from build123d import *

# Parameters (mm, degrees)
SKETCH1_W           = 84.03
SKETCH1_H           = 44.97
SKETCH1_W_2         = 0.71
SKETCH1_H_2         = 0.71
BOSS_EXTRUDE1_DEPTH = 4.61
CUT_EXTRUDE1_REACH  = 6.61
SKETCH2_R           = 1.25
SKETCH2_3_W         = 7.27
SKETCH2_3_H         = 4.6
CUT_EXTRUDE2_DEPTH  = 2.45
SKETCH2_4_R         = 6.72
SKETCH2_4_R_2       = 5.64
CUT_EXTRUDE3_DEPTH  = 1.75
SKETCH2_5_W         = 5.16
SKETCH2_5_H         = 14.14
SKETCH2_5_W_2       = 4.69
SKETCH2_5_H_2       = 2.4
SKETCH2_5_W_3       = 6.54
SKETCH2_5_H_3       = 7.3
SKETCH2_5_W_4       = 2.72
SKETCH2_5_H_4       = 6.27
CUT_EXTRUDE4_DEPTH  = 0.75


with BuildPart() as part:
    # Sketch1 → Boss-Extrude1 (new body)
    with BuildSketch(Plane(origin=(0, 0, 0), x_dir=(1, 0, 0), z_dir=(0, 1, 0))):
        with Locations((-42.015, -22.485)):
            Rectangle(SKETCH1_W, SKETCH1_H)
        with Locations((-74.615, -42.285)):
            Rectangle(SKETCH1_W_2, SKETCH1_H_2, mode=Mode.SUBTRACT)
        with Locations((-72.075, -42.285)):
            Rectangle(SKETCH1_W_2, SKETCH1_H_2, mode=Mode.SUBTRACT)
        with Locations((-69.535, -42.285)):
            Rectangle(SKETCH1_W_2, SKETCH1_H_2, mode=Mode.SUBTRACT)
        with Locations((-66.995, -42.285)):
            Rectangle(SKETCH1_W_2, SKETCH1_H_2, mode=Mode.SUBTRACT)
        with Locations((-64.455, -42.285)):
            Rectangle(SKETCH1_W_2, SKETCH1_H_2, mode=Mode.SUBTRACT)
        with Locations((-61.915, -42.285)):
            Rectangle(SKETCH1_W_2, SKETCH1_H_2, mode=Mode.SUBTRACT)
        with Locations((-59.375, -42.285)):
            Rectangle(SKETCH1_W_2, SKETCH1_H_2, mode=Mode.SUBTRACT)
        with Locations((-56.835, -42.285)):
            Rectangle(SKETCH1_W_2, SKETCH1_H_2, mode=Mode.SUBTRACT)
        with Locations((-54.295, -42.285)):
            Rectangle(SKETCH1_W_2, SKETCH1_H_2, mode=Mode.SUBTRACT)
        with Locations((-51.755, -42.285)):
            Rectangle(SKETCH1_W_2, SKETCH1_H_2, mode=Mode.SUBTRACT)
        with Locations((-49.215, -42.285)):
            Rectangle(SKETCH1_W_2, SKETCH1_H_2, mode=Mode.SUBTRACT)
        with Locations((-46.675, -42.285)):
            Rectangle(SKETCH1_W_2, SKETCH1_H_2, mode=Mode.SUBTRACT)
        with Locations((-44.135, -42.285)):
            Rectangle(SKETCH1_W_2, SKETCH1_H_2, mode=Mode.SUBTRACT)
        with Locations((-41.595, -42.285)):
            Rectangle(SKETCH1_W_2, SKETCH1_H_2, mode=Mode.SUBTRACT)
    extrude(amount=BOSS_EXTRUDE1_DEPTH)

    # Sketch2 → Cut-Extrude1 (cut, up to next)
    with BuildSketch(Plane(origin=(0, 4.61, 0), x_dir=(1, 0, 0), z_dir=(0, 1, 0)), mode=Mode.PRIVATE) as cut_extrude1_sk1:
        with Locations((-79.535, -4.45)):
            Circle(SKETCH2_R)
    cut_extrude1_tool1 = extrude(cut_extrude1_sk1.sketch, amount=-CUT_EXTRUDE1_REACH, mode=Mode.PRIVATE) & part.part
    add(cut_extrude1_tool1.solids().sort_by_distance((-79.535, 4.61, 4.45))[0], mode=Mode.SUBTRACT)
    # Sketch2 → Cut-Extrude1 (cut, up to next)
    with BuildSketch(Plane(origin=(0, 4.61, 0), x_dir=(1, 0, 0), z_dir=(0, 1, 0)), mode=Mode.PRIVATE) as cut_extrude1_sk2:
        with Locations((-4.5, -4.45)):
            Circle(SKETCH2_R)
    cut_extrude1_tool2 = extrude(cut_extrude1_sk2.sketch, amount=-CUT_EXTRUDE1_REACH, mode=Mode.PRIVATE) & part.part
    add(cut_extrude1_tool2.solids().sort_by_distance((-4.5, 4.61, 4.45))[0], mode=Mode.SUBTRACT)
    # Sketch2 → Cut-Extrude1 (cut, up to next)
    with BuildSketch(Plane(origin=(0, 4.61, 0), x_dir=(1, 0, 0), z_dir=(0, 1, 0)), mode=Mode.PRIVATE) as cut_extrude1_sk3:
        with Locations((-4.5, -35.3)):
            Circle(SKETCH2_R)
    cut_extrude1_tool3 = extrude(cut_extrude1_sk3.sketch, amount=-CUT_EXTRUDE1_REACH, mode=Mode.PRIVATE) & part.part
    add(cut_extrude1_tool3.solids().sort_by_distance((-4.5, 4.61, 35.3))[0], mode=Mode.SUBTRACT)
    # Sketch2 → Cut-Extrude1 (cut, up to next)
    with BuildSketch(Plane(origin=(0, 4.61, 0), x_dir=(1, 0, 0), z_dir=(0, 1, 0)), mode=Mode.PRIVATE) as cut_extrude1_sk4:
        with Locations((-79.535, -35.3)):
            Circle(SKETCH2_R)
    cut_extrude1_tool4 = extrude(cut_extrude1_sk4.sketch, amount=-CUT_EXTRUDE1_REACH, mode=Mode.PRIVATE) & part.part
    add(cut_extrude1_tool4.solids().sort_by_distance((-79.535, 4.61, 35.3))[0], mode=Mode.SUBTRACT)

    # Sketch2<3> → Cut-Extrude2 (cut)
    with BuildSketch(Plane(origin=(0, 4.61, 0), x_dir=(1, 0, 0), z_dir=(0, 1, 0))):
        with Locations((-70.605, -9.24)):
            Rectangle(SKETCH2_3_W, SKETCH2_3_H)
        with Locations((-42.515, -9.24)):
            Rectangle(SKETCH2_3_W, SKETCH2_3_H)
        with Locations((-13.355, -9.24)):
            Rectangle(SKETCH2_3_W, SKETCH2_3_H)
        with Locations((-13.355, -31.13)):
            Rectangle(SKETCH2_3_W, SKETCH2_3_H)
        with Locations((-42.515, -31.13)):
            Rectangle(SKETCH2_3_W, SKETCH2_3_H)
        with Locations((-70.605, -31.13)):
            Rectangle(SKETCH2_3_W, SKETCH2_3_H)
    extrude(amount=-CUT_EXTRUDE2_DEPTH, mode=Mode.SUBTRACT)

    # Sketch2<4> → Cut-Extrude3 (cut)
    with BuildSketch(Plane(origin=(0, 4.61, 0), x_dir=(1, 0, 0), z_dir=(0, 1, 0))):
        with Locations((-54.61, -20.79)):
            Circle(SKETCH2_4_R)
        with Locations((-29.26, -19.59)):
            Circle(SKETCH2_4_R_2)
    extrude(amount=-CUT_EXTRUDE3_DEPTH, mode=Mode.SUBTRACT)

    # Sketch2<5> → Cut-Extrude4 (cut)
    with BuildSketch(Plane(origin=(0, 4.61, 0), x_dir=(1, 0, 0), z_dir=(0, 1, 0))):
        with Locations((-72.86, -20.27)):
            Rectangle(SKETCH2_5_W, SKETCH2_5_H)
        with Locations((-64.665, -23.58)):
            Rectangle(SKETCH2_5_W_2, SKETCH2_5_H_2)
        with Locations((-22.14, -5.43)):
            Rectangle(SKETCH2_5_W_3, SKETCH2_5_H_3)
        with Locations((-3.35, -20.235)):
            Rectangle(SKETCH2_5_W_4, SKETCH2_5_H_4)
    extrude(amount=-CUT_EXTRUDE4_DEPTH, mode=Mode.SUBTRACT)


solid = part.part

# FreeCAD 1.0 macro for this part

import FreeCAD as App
import Part
import Sketcher
from FreeCAD import Vector

doc = App.newDocument("Part")
body = doc.addObject("PartDesign::Body", "Body")

# Sketch on XZ plane
sketch1 = body.newObject("Sketcher::SketchObject", "Sketch")
sketch1.AttachmentSupport = (doc.getObject("XZ_Plane"), [""])
sketch1.MapMode = "FlatFace"
sketch1.addGeometry(Part.LineSegment(Vector(-84, 0, 0), Vector(-84, 45, 0)), False)
sketch1.addGeometry(Part.LineSegment(Vector(-84, 45, 0), Vector(0, 45, 0)), False)
sketch1.addGeometry(Part.LineSegment(Vector(0, 45, 0), Vector(0, 0, 0)), False)
sketch1.addGeometry(Part.LineSegment(Vector(0, 0, 0), Vector(-84, 0, 0)), False)
sketch1.addGeometry(Part.LineSegment(Vector(-74.3, 42.6, 0), Vector(-75, 42.6, 0)), False)
sketch1.addGeometry(Part.LineSegment(Vector(-75, 42.6, 0), Vector(-75, 41.9, 0)), False)
sketch1.addGeometry(Part.LineSegment(Vector(-75, 41.9, 0), Vector(-74.3, 41.9, 0)), False)
sketch1.addGeometry(Part.LineSegment(Vector(-74.3, 41.9, 0), Vector(-74.3, 42.6, 0)), False)
sketch1.addGeometry(Part.LineSegment(Vector(-71.7, 42.6, 0), Vector(-72.4, 42.6, 0)), False)
sketch1.addGeometry(Part.LineSegment(Vector(-72.4, 42.6, 0), Vector(-72.4, 41.9, 0)), False)
sketch1.addGeometry(Part.LineSegment(Vector(-72.4, 41.9, 0), Vector(-71.7, 41.9, 0)), False)
sketch1.addGeometry(Part.LineSegment(Vector(-71.7, 41.9, 0), Vector(-71.7, 42.6, 0)), False)
sketch1.addGeometry(Part.LineSegment(Vector(-69.2, 42.6, 0), Vector(-69.9, 42.6, 0)), False)
sketch1.addGeometry(Part.LineSegment(Vector(-69.9, 42.6, 0), Vector(-69.9, 41.9, 0)), False)
sketch1.addGeometry(Part.LineSegment(Vector(-69.9, 41.9, 0), Vector(-69.2, 41.9, 0)), False)
sketch1.addGeometry(Part.LineSegment(Vector(-69.2, 41.9, 0), Vector(-69.2, 42.6, 0)), False)
sketch1.addGeometry(Part.LineSegment(Vector(-66.6, 42.6, 0), Vector(-67.3, 42.6, 0)), False)
sketch1.addGeometry(Part.LineSegment(Vector(-67.3, 42.6, 0), Vector(-67.3, 41.9, 0)), False)
sketch1.addGeometry(Part.LineSegment(Vector(-67.3, 41.9, 0), Vector(-66.6, 41.9, 0)), False)
sketch1.addGeometry(Part.LineSegment(Vector(-66.6, 41.9, 0), Vector(-66.6, 42.6, 0)), False)
sketch1.addGeometry(Part.LineSegment(Vector(-64.1, 42.6, 0), Vector(-64.8, 42.6, 0)), False)
sketch1.addGeometry(Part.LineSegment(Vector(-64.8, 42.6, 0), Vector(-64.8, 41.9, 0)), False)
sketch1.addGeometry(Part.LineSegment(Vector(-64.8, 41.9, 0), Vector(-64.1, 41.9, 0)), False)
sketch1.addGeometry(Part.LineSegment(Vector(-64.1, 41.9, 0), Vector(-64.1, 42.6, 0)), False)
sketch1.addGeometry(Part.LineSegment(Vector(-61.6, 42.6, 0), Vector(-62.3, 42.6, 0)), False)
sketch1.addGeometry(Part.LineSegment(Vector(-62.3, 42.6, 0), Vector(-62.3, 41.9, 0)), False)
sketch1.addGeometry(Part.LineSegment(Vector(-62.3, 41.9, 0), Vector(-61.6, 41.9, 0)), False)
sketch1.addGeometry(Part.LineSegment(Vector(-61.6, 41.9, 0), Vector(-61.6, 42.6, 0)), False)
sketch1.addGeometry(Part.LineSegment(Vector(-59, 42.6, 0), Vector(-59.7, 42.6, 0)), False)
sketch1.addGeometry(Part.LineSegment(Vector(-59.7, 42.6, 0), Vector(-59.7, 41.9, 0)), False)
sketch1.addGeometry(Part.LineSegment(Vector(-59.7, 41.9, 0), Vector(-59, 41.9, 0)), False)
sketch1.addGeometry(Part.LineSegment(Vector(-59, 41.9, 0), Vector(-59, 42.6, 0)), False)
sketch1.addGeometry(Part.LineSegment(Vector(-56.5, 42.6, 0), Vector(-57.2, 42.6, 0)), False)
sketch1.addGeometry(Part.LineSegment(Vector(-57.2, 42.6, 0), Vector(-57.2, 41.9, 0)), False)
sketch1.addGeometry(Part.LineSegment(Vector(-57.2, 41.9, 0), Vector(-56.5, 41.9, 0)), False)
sketch1.addGeometry(Part.LineSegment(Vector(-56.5, 41.9, 0), Vector(-56.5, 42.6, 0)), False)
sketch1.addGeometry(Part.LineSegment(Vector(-53.9, 42.6, 0), Vector(-54.6, 42.6, 0)), False)
sketch1.addGeometry(Part.LineSegment(Vector(-54.6, 42.6, 0), Vector(-54.6, 41.9, 0)), False)
sketch1.addGeometry(Part.LineSegment(Vector(-54.6, 41.9, 0), Vector(-53.9, 41.9, 0)), False)
sketch1.addGeometry(Part.LineSegment(Vector(-53.9, 41.9, 0), Vector(-53.9, 42.6, 0)), False)
sketch1.addGeometry(Part.LineSegment(Vector(-51.4, 42.6, 0), Vector(-52.1, 42.6, 0)), False)
sketch1.addGeometry(Part.LineSegment(Vector(-52.1, 42.6, 0), Vector(-52.1, 41.9, 0)), False)
sketch1.addGeometry(Part.LineSegment(Vector(-52.1, 41.9, 0), Vector(-51.4, 41.9, 0)), False)
sketch1.addGeometry(Part.LineSegment(Vector(-51.4, 41.9, 0), Vector(-51.4, 42.6, 0)), False)
sketch1.addGeometry(Part.LineSegment(Vector(-48.9, 42.6, 0), Vector(-49.6, 42.6, 0)), False)
sketch1.addGeometry(Part.LineSegment(Vector(-49.6, 42.6, 0), Vector(-49.6, 41.9, 0)), False)
sketch1.addGeometry(Part.LineSegment(Vector(-49.6, 41.9, 0), Vector(-48.9, 41.9, 0)), False)
sketch1.addGeometry(Part.LineSegment(Vector(-48.9, 41.9, 0), Vector(-48.9, 42.6, 0)), False)
sketch1.addGeometry(Part.LineSegment(Vector(-46.3, 42.6, 0), Vector(-47, 42.6, 0)), False)
sketch1.addGeometry(Part.LineSegment(Vector(-47, 42.6, 0), Vector(-47, 41.9, 0)), False)
sketch1.addGeometry(Part.LineSegment(Vector(-47, 41.9, 0), Vector(-46.3, 41.9, 0)), False)
sketch1.addGeometry(Part.LineSegment(Vector(-46.3, 41.9, 0), Vector(-46.3, 42.6, 0)), False)
sketch1.addGeometry(Part.LineSegment(Vector(-43.8, 42.6, 0), Vector(-44.5, 42.6, 0)), False)
sketch1.addGeometry(Part.LineSegment(Vector(-44.5, 42.6, 0), Vector(-44.5, 41.9, 0)), False)
sketch1.addGeometry(Part.LineSegment(Vector(-44.5, 41.9, 0), Vector(-43.8, 41.9, 0)), False)
sketch1.addGeometry(Part.LineSegment(Vector(-43.8, 41.9, 0), Vector(-43.8, 42.6, 0)), False)
sketch1.addGeometry(Part.LineSegment(Vector(-41.2, 42.6, 0), Vector(-42, 42.6, 0)), False)
sketch1.addGeometry(Part.LineSegment(Vector(-42, 42.6, 0), Vector(-42, 41.9, 0)), False)
sketch1.addGeometry(Part.LineSegment(Vector(-42, 41.9, 0), Vector(-41.2, 41.9, 0)), False)
sketch1.addGeometry(Part.LineSegment(Vector(-41.2, 41.9, 0), Vector(-41.2, 42.6, 0)), False)
sketch1.addConstraint(Sketcher.Constraint("Coincident", 0, 2, 1, 1))
sketch1.addConstraint(Sketcher.Constraint("Coincident", 1, 2, 2, 1))
sketch1.addConstraint(Sketcher.Constraint("Coincident", 2, 2, 3, 1))
sketch1.addConstraint(Sketcher.Constraint("Coincident", 3, 2, 0, 1))
sketch1.addConstraint(Sketcher.Constraint("Coincident", 4, 2, 5, 1))
sketch1.addConstraint(Sketcher.Constraint("Coincident", 5, 2, 6, 1))
sketch1.addConstraint(Sketcher.Constraint("Coincident", 6, 2, 7, 1))
sketch1.addConstraint(Sketcher.Constraint("Coincident", 7, 2, 4, 1))
sketch1.addConstraint(Sketcher.Constraint("Coincident", 8, 2, 9, 1))
sketch1.addConstraint(Sketcher.Constraint("Coincident", 9, 2, 10, 1))
sketch1.addConstraint(Sketcher.Constraint("Coincident", 10, 2, 11, 1))
sketch1.addConstraint(Sketcher.Constraint("Coincident", 11, 2, 8, 1))
sketch1.addConstraint(Sketcher.Constraint("Coincident", 12, 2, 13, 1))
sketch1.addConstraint(Sketcher.Constraint("Coincident", 13, 2, 14, 1))
sketch1.addConstraint(Sketcher.Constraint("Coincident", 14, 2, 15, 1))
sketch1.addConstraint(Sketcher.Constraint("Coincident", 15, 2, 12, 1))
sketch1.addConstraint(Sketcher.Constraint("Coincident", 16, 2, 17, 1))
sketch1.addConstraint(Sketcher.Constraint("Coincident", 17, 2, 18, 1))
sketch1.addConstraint(Sketcher.Constraint("Coincident", 18, 2, 19, 1))
sketch1.addConstraint(Sketcher.Constraint("Coincident", 19, 2, 16, 1))
sketch1.addConstraint(Sketcher.Constraint("Coincident", 20, 2, 21, 1))
sketch1.addConstraint(Sketcher.Constraint("Coincident", 21, 2, 22, 1))
sketch1.addConstraint(Sketcher.Constraint("Coincident", 22, 2, 23, 1))
sketch1.addConstraint(Sketcher.Constraint("Coincident", 23, 2, 20, 1))
sketch1.addConstraint(Sketcher.Constraint("Coincident", 24, 2, 25, 1))
sketch1.addConstraint(Sketcher.Constraint("Coincident", 25, 2, 26, 1))
sketch1.addConstraint(Sketcher.Constraint("Coincident", 26, 2, 27, 1))
sketch1.addConstraint(Sketcher.Constraint("Coincident", 27, 2, 24, 1))
sketch1.addConstraint(Sketcher.Constraint("Coincident", 28, 2, 29, 1))
sketch1.addConstraint(Sketcher.Constraint("Coincident", 29, 2, 30, 1))
sketch1.addConstraint(Sketcher.Constraint("Coincident", 30, 2, 31, 1))
sketch1.addConstraint(Sketcher.Constraint("Coincident", 31, 2, 28, 1))
sketch1.addConstraint(Sketcher.Constraint("Coincident", 32, 2, 33, 1))
sketch1.addConstraint(Sketcher.Constraint("Coincident", 33, 2, 34, 1))
sketch1.addConstraint(Sketcher.Constraint("Coincident", 34, 2, 35, 1))
sketch1.addConstraint(Sketcher.Constraint("Coincident", 35, 2, 32, 1))
sketch1.addConstraint(Sketcher.Constraint("Coincident", 36, 2, 37, 1))
sketch1.addConstraint(Sketcher.Constraint("Coincident", 37, 2, 38, 1))
sketch1.addConstraint(Sketcher.Constraint("Coincident", 38, 2, 39, 1))
sketch1.addConstraint(Sketcher.Constraint("Coincident", 39, 2, 36, 1))
sketch1.addConstraint(Sketcher.Constraint("Coincident", 40, 2, 41, 1))
sketch1.addConstraint(Sketcher.Constraint("Coincident", 41, 2, 42, 1))
sketch1.addConstraint(Sketcher.Constraint("Coincident", 42, 2, 43, 1))
sketch1.addConstraint(Sketcher.Constraint("Coincident", 43, 2, 40, 1))
sketch1.addConstraint(Sketcher.Constraint("Coincident", 44, 2, 45, 1))
sketch1.addConstraint(Sketcher.Constraint("Coincident", 45, 2, 46, 1))
sketch1.addConstraint(Sketcher.Constraint("Coincident", 46, 2, 47, 1))
sketch1.addConstraint(Sketcher.Constraint("Coincident", 47, 2, 44, 1))
sketch1.addConstraint(Sketcher.Constraint("Coincident", 48, 2, 49, 1))
sketch1.addConstraint(Sketcher.Constraint("Coincident", 49, 2, 50, 1))
sketch1.addConstraint(Sketcher.Constraint("Coincident", 50, 2, 51, 1))
sketch1.addConstraint(Sketcher.Constraint("Coincident", 51, 2, 48, 1))
sketch1.addConstraint(Sketcher.Constraint("Coincident", 52, 2, 53, 1))
sketch1.addConstraint(Sketcher.Constraint("Coincident", 53, 2, 54, 1))
sketch1.addConstraint(Sketcher.Constraint("Coincident", 54, 2, 55, 1))
sketch1.addConstraint(Sketcher.Constraint("Coincident", 55, 2, 52, 1))
sketch1.addConstraint(Sketcher.Constraint("Coincident", 56, 2, 57, 1))
sketch1.addConstraint(Sketcher.Constraint("Coincident", 57, 2, 58, 1))
sketch1.addConstraint(Sketcher.Constraint("Coincident", 58, 2, 59, 1))
sketch1.addConstraint(Sketcher.Constraint("Coincident", 59, 2, 56, 1))
sketch1.addConstraint(Sketcher.Constraint("Vertical", 0))
sketch1.addConstraint(Sketcher.Constraint("Horizontal", 1))
sketch1.addConstraint(Sketcher.Constraint("Vertical", 2))
sketch1.addConstraint(Sketcher.Constraint("Horizontal", 3))
sketch1.addConstraint(Sketcher.Constraint("Horizontal", 4))
sketch1.addConstraint(Sketcher.Constraint("Vertical", 5))
sketch1.addConstraint(Sketcher.Constraint("Horizontal", 6))
sketch1.addConstraint(Sketcher.Constraint("Vertical", 7))
sketch1.addConstraint(Sketcher.Constraint("Horizontal", 8))
sketch1.addConstraint(Sketcher.Constraint("Vertical", 9))
sketch1.addConstraint(Sketcher.Constraint("Horizontal", 10))
sketch1.addConstraint(Sketcher.Constraint("Vertical", 11))
sketch1.addConstraint(Sketcher.Constraint("Horizontal", 12))
sketch1.addConstraint(Sketcher.Constraint("Vertical", 13))
sketch1.addConstraint(Sketcher.Constraint("Horizontal", 14))
sketch1.addConstraint(Sketcher.Constraint("Vertical", 15))
sketch1.addConstraint(Sketcher.Constraint("Horizontal", 16))
sketch1.addConstraint(Sketcher.Constraint("Vertical", 17))
sketch1.addConstraint(Sketcher.Constraint("Horizontal", 18))
sketch1.addConstraint(Sketcher.Constraint("Vertical", 19))
sketch1.addConstraint(Sketcher.Constraint("Horizontal", 20))
sketch1.addConstraint(Sketcher.Constraint("Vertical", 21))
sketch1.addConstraint(Sketcher.Constraint("Horizontal", 22))
sketch1.addConstraint(Sketcher.Constraint("Vertical", 23))
sketch1.addConstraint(Sketcher.Constraint("Horizontal", 24))
sketch1.addConstraint(Sketcher.Constraint("Vertical", 25))
sketch1.addConstraint(Sketcher.Constraint("Horizontal", 26))
sketch1.addConstraint(Sketcher.Constraint("Vertical", 27))
sketch1.addConstraint(Sketcher.Constraint("Horizontal", 28))
sketch1.addConstraint(Sketcher.Constraint("Vertical", 29))
sketch1.addConstraint(Sketcher.Constraint("Horizontal", 30))
sketch1.addConstraint(Sketcher.Constraint("Vertical", 31))
sketch1.addConstraint(Sketcher.Constraint("Horizontal", 32))
sketch1.addConstraint(Sketcher.Constraint("Vertical", 33))
sketch1.addConstraint(Sketcher.Constraint("Horizontal", 34))
sketch1.addConstraint(Sketcher.Constraint("Vertical", 35))
sketch1.addConstraint(Sketcher.Constraint("Horizontal", 36))
sketch1.addConstraint(Sketcher.Constraint("Vertical", 37))
sketch1.addConstraint(Sketcher.Constraint("Horizontal", 38))
sketch1.addConstraint(Sketcher.Constraint("Vertical", 39))
sketch1.addConstraint(Sketcher.Constraint("Horizontal", 40))
sketch1.addConstraint(Sketcher.Constraint("Vertical", 41))
sketch1.addConstraint(Sketcher.Constraint("Horizontal", 42))
sketch1.addConstraint(Sketcher.Constraint("Vertical", 43))
sketch1.addConstraint(Sketcher.Constraint("Horizontal", 44))
sketch1.addConstraint(Sketcher.Constraint("Vertical", 45))
sketch1.addConstraint(Sketcher.Constraint("Horizontal", 46))
sketch1.addConstraint(Sketcher.Constraint("Vertical", 47))
sketch1.addConstraint(Sketcher.Constraint("Horizontal", 48))
sketch1.addConstraint(Sketcher.Constraint("Vertical", 49))
sketch1.addConstraint(Sketcher.Constraint("Horizontal", 50))
sketch1.addConstraint(Sketcher.Constraint("Vertical", 51))
sketch1.addConstraint(Sketcher.Constraint("Horizontal", 52))
sketch1.addConstraint(Sketcher.Constraint("Vertical", 53))
sketch1.addConstraint(Sketcher.Constraint("Horizontal", 54))
sketch1.addConstraint(Sketcher.Constraint("Vertical", 55))
sketch1.addConstraint(Sketcher.Constraint("Horizontal", 56))
sketch1.addConstraint(Sketcher.Constraint("Vertical", 57))
sketch1.addConstraint(Sketcher.Constraint("Horizontal", 58))
sketch1.addConstraint(Sketcher.Constraint("Vertical", 59))
sketch1.addConstraint(Sketcher.Constraint("Coincident", 2, 2, -1, 1))
sketch1.addConstraint(Sketcher.Constraint("Horizontal", 7, 2, 8, 2))
sketch1.addConstraint(Sketcher.Constraint("Horizontal", 6, 2, 9, 2))
sketch1.addConstraint(Sketcher.Constraint("Horizontal", 11, 2, 12, 2))
sketch1.addConstraint(Sketcher.Constraint("Horizontal", 10, 2, 13, 2))
sketch1.addConstraint(Sketcher.Constraint("Horizontal", 15, 2, 16, 2))
sketch1.addConstraint(Sketcher.Constraint("Horizontal", 14, 2, 17, 2))
sketch1.addConstraint(Sketcher.Constraint("Horizontal", 19, 2, 20, 2))
sketch1.addConstraint(Sketcher.Constraint("Horizontal", 18, 2, 21, 2))
sketch1.addConstraint(Sketcher.Constraint("Horizontal", 23, 2, 24, 2))
sketch1.addConstraint(Sketcher.Constraint("Horizontal", 22, 2, 25, 2))
sketch1.addConstraint(Sketcher.Constraint("Horizontal", 27, 2, 28, 2))
sketch1.addConstraint(Sketcher.Constraint("Horizontal", 26, 2, 29, 2))
sketch1.addConstraint(Sketcher.Constraint("Horizontal", 31, 2, 32, 2))
sketch1.addConstraint(Sketcher.Constraint("Horizontal", 30, 2, 33, 2))
sketch1.addConstraint(Sketcher.Constraint("Horizontal", 35, 2, 36, 2))
sketch1.addConstraint(Sketcher.Constraint("Horizontal", 34, 2, 37, 2))
sketch1.addConstraint(Sketcher.Constraint("Horizontal", 39, 2, 40, 2))
sketch1.addConstraint(Sketcher.Constraint("Horizontal", 38, 2, 41, 2))
sketch1.addConstraint(Sketcher.Constraint("Horizontal", 43, 2, 44, 2))
sketch1.addConstraint(Sketcher.Constraint("Horizontal", 42, 2, 45, 2))
sketch1.addConstraint(Sketcher.Constraint("Horizontal", 47, 2, 48, 2))
sketch1.addConstraint(Sketcher.Constraint("Horizontal", 46, 2, 49, 2))
sketch1.addConstraint(Sketcher.Constraint("Horizontal", 51, 2, 52, 2))
sketch1.addConstraint(Sketcher.Constraint("Horizontal", 50, 2, 53, 2))
sketch1.addConstraint(Sketcher.Constraint("Horizontal", 55, 2, 56, 2))
sketch1.addConstraint(Sketcher.Constraint("Horizontal", 54, 2, 57, 2))
sketch1.addConstraint(Sketcher.Constraint("Equal", 6, 8))
sketch1.addConstraint(Sketcher.Constraint("Equal", 10, 12))
sketch1.addConstraint(Sketcher.Constraint("Equal", 14, 16))
sketch1.addConstraint(Sketcher.Constraint("Equal", 18, 20))
sketch1.addConstraint(Sketcher.Constraint("Equal", 22, 24))
sketch1.addConstraint(Sketcher.Constraint("Equal", 26, 28))
sketch1.addConstraint(Sketcher.Constraint("Equal", 30, 32))
sketch1.addConstraint(Sketcher.Constraint("Equal", 34, 36))
sketch1.addConstraint(Sketcher.Constraint("Equal", 38, 40))
sketch1.addConstraint(Sketcher.Constraint("Equal", 42, 44))
sketch1.addConstraint(Sketcher.Constraint("Equal", 46, 48))
sketch1.addConstraint(Sketcher.Constraint("Equal", 50, 52))
sketch1.addConstraint(Sketcher.Constraint("Equal", 54, 56))
sketch1.addConstraint(Sketcher.Constraint("Equal", 58, 5))
sketch1.addConstraint(Sketcher.Constraint("DistanceX", 1, 1, 1, 2, 84.03))
sketch1.addConstraint(Sketcher.Constraint("DistanceX", 4, 2, 4, 1, 0.71))
sketch1.addConstraint(Sketcher.Constraint("DistanceY", 0, 1, 0, 2, 44.97))
sketch1.addConstraint(Sketcher.Constraint("DistanceX", 22, 2, -1, 1, 64.1))
sketch1.addConstraint(Sketcher.Constraint("DistanceX", 42, 2, -1, 1, 51.4))
sketch1.addConstraint(Sketcher.Constraint("DistanceX", 0, 2, 8, 2, 11.6))
sketch1.addConstraint(Sketcher.Constraint("DistanceX", 4, 2, -1, 1, 74.97))
sketch1.addConstraint(Sketcher.Constraint("DistanceY", -1, 1, 4, 2, 42.64))
sketch1.addConstraint(Sketcher.Constraint("DistanceX", 12, 2, -1, 1, 69.89))
sketch1.addConstraint(Sketcher.Constraint("DistanceX", 16, 2, -1, 1, 67.35))
sketch1.addConstraint(Sketcher.Constraint("DistanceX", 24, 2, -1, 1, 62.27))
sketch1.addConstraint(Sketcher.Constraint("DistanceX", 28, 2, -1, 1, 59.73))
sketch1.addConstraint(Sketcher.Constraint("DistanceX", 32, 2, -1, 1, 57.19))
sketch1.addConstraint(Sketcher.Constraint("DistanceX", 36, 2, -1, 1, 54.65))
sketch1.addConstraint(Sketcher.Constraint("DistanceX", 44, 2, -1, 1, 49.57))
sketch1.addConstraint(Sketcher.Constraint("DistanceX", 48, 2, -1, 1, 47.03))
sketch1.addConstraint(Sketcher.Constraint("DistanceX", 52, 2, -1, 1, 44.49))
sketch1.addConstraint(Sketcher.Constraint("DistanceX", 56, 2, -1, 1, 41.95))
pad1 = body.newObject("PartDesign::Pad", "Pad")
pad1.Profile = sketch1
pad1.Length = 4.61
pad1.Reversed = True

# Sketch on XZ plane
sketch2 = body.newObject("Sketcher::SketchObject", "Sketch001")
sketch2.AttachmentSupport = (doc.getObject("XZ_Plane"), [""])
sketch2.MapMode = "FlatFace"
sketch2.AttachmentOffset = App.Placement(Vector(0, 0, -4.61), App.Rotation())
sketch2.addGeometry(Part.Circle(Vector(-79.5, 4.5, 0), Vector(0, 0, 1), 1.2), False)
sketch2.addConstraint(Sketcher.Constraint("Diameter", 0, 2.5))
sketch2.addConstraint(Sketcher.Constraint("DistanceY", -1, 1, 0, 3, 4.45))
sketch2.addConstraint(Sketcher.Constraint("DistanceX", 0, 3, -1, 1, 79.535))
pocket1 = body.newObject("PartDesign::Pocket", "Pocket")
pocket1.Profile = sketch2
pocket1.Type = "UpToFirst"
pocket1.Reversed = True

# Sketch on XZ plane
sketch3 = body.newObject("Sketcher::SketchObject", "Sketch002")
sketch3.AttachmentSupport = (doc.getObject("XZ_Plane"), [""])
sketch3.MapMode = "FlatFace"
sketch3.AttachmentOffset = App.Placement(Vector(0, 0, -4.61), App.Rotation())
sketch3.addGeometry(Part.Circle(Vector(-4.5, 4.5, 0), Vector(0, 0, 1), 1.2), False)
sketch3.addConstraint(Sketcher.Constraint("Diameter", 0, 2.5))
sketch3.addConstraint(Sketcher.Constraint("DistanceX", 0, 3, -1, 1, 4.5))
sketch3.addConstraint(Sketcher.Constraint("DistanceY", -1, 1, 0, 3, 4.45))
pocket2 = body.newObject("PartDesign::Pocket", "Pocket001")
pocket2.Profile = sketch3
pocket2.Type = "UpToFirst"
pocket2.Reversed = True

# Sketch on XZ plane
sketch4 = body.newObject("Sketcher::SketchObject", "Sketch003")
sketch4.AttachmentSupport = (doc.getObject("XZ_Plane"), [""])
sketch4.MapMode = "FlatFace"
sketch4.AttachmentOffset = App.Placement(Vector(0, 0, -4.61), App.Rotation())
sketch4.addGeometry(Part.Circle(Vector(-4.5, 35.3, 0), Vector(0, 0, 1), 1.2), False)
sketch4.addConstraint(Sketcher.Constraint("Diameter", 0, 2.5))
sketch4.addConstraint(Sketcher.Constraint("DistanceX", 0, 3, -1, 1, 4.5))
sketch4.addConstraint(Sketcher.Constraint("DistanceY", -1, 1, 0, 3, 35.3))
pocket3 = body.newObject("PartDesign::Pocket", "Pocket002")
pocket3.Profile = sketch4
pocket3.Type = "UpToFirst"
pocket3.Reversed = True

# Sketch on XZ plane
sketch5 = body.newObject("Sketcher::SketchObject", "Sketch004")
sketch5.AttachmentSupport = (doc.getObject("XZ_Plane"), [""])
sketch5.MapMode = "FlatFace"
sketch5.AttachmentOffset = App.Placement(Vector(0, 0, -4.61), App.Rotation())
sketch5.addGeometry(Part.Circle(Vector(-79.5, 35.3, 0), Vector(0, 0, 1), 1.2), False)
sketch5.addConstraint(Sketcher.Constraint("Diameter", 0, 2.5))
sketch5.addConstraint(Sketcher.Constraint("DistanceY", -1, 1, 0, 3, 35.3))
sketch5.addConstraint(Sketcher.Constraint("DistanceX", 0, 3, -1, 1, 79.535))
pocket4 = body.newObject("PartDesign::Pocket", "Pocket003")
pocket4.Profile = sketch5
pocket4.Type = "UpToFirst"
pocket4.Reversed = True

# Sketch on XZ plane
sketch6 = body.newObject("Sketcher::SketchObject", "Sketch005")
sketch6.AttachmentSupport = (doc.getObject("XZ_Plane"), [""])
sketch6.MapMode = "FlatFace"
sketch6.AttachmentOffset = App.Placement(Vector(0, 0, -4.61), App.Rotation())
sketch6.addGeometry(Part.LineSegment(Vector(-74.2, 6.9, 0), Vector(-74.2, 11.5, 0)), False)
sketch6.addGeometry(Part.LineSegment(Vector(-74.2, 11.5, 0), Vector(-67, 11.5, 0)), False)
sketch6.addGeometry(Part.LineSegment(Vector(-67, 11.5, 0), Vector(-67, 6.9, 0)), False)
sketch6.addGeometry(Part.LineSegment(Vector(-67, 6.9, 0), Vector(-74.2, 6.9, 0)), False)
sketch6.addGeometry(Part.LineSegment(Vector(-46.1, 6.9, 0), Vector(-46.1, 11.5, 0)), False)
sketch6.addGeometry(Part.LineSegment(Vector(-46.1, 11.5, 0), Vector(-38.9, 11.5, 0)), False)
sketch6.addGeometry(Part.LineSegment(Vector(-38.9, 11.5, 0), Vector(-38.9, 6.9, 0)), False)
sketch6.addGeometry(Part.LineSegment(Vector(-38.9, 6.9, 0), Vector(-46.1, 6.9, 0)), False)
sketch6.addGeometry(Part.LineSegment(Vector(-17, 6.9, 0), Vector(-17, 11.5, 0)), False)
sketch6.addGeometry(Part.LineSegment(Vector(-17, 11.5, 0), Vector(-9.7, 11.5, 0)), False)
sketch6.addGeometry(Part.LineSegment(Vector(-9.7, 11.5, 0), Vector(-9.7, 6.9, 0)), False)
sketch6.addGeometry(Part.LineSegment(Vector(-9.7, 6.9, 0), Vector(-17, 6.9, 0)), False)
sketch6.addGeometry(Part.LineSegment(Vector(-17, 28.8, 0), Vector(-17, 33.4, 0)), False)
sketch6.addGeometry(Part.LineSegment(Vector(-17, 33.4, 0), Vector(-9.7, 33.4, 0)), False)
sketch6.addGeometry(Part.LineSegment(Vector(-9.7, 33.4, 0), Vector(-9.7, 28.8, 0)), False)
sketch6.addGeometry(Part.LineSegment(Vector(-9.7, 28.8, 0), Vector(-17, 28.8, 0)), False)
sketch6.addGeometry(Part.LineSegment(Vector(-46.1, 28.8, 0), Vector(-46.1, 33.4, 0)), False)
sketch6.addGeometry(Part.LineSegment(Vector(-46.1, 33.4, 0), Vector(-38.9, 33.4, 0)), False)
sketch6.addGeometry(Part.LineSegment(Vector(-38.9, 33.4, 0), Vector(-38.9, 28.8, 0)), False)
sketch6.addGeometry(Part.LineSegment(Vector(-38.9, 28.8, 0), Vector(-46.1, 28.8, 0)), False)
sketch6.addGeometry(Part.LineSegment(Vector(-74.2, 28.8, 0), Vector(-74.2, 33.4, 0)), False)
sketch6.addGeometry(Part.LineSegment(Vector(-74.2, 33.4, 0), Vector(-67, 33.4, 0)), False)
sketch6.addGeometry(Part.LineSegment(Vector(-67, 33.4, 0), Vector(-67, 28.8, 0)), False)
sketch6.addGeometry(Part.LineSegment(Vector(-67, 28.8, 0), Vector(-74.2, 28.8, 0)), False)
sketch6.addConstraint(Sketcher.Constraint("Coincident", 0, 2, 1, 1))
sketch6.addConstraint(Sketcher.Constraint("Coincident", 1, 2, 2, 1))
sketch6.addConstraint(Sketcher.Constraint("Coincident", 2, 2, 3, 1))
sketch6.addConstraint(Sketcher.Constraint("Coincident", 3, 2, 0, 1))
sketch6.addConstraint(Sketcher.Constraint("Coincident", 4, 2, 5, 1))
sketch6.addConstraint(Sketcher.Constraint("Coincident", 5, 2, 6, 1))
sketch6.addConstraint(Sketcher.Constraint("Coincident", 6, 2, 7, 1))
sketch6.addConstraint(Sketcher.Constraint("Coincident", 7, 2, 4, 1))
sketch6.addConstraint(Sketcher.Constraint("Coincident", 8, 2, 9, 1))
sketch6.addConstraint(Sketcher.Constraint("Coincident", 9, 2, 10, 1))
sketch6.addConstraint(Sketcher.Constraint("Coincident", 10, 2, 11, 1))
sketch6.addConstraint(Sketcher.Constraint("Coincident", 11, 2, 8, 1))
sketch6.addConstraint(Sketcher.Constraint("Coincident", 12, 2, 13, 1))
sketch6.addConstraint(Sketcher.Constraint("Coincident", 13, 2, 14, 1))
sketch6.addConstraint(Sketcher.Constraint("Coincident", 14, 2, 15, 1))
sketch6.addConstraint(Sketcher.Constraint("Coincident", 15, 2, 12, 1))
sketch6.addConstraint(Sketcher.Constraint("Coincident", 16, 2, 17, 1))
sketch6.addConstraint(Sketcher.Constraint("Coincident", 17, 2, 18, 1))
sketch6.addConstraint(Sketcher.Constraint("Coincident", 18, 2, 19, 1))
sketch6.addConstraint(Sketcher.Constraint("Coincident", 19, 2, 16, 1))
sketch6.addConstraint(Sketcher.Constraint("Coincident", 20, 2, 21, 1))
sketch6.addConstraint(Sketcher.Constraint("Coincident", 21, 2, 22, 1))
sketch6.addConstraint(Sketcher.Constraint("Coincident", 22, 2, 23, 1))
sketch6.addConstraint(Sketcher.Constraint("Coincident", 23, 2, 20, 1))
sketch6.addConstraint(Sketcher.Constraint("Vertical", 0))
sketch6.addConstraint(Sketcher.Constraint("Horizontal", 1))
sketch6.addConstraint(Sketcher.Constraint("Vertical", 2))
sketch6.addConstraint(Sketcher.Constraint("Horizontal", 3))
sketch6.addConstraint(Sketcher.Constraint("Vertical", 4))
sketch6.addConstraint(Sketcher.Constraint("Horizontal", 5))
sketch6.addConstraint(Sketcher.Constraint("Vertical", 6))
sketch6.addConstraint(Sketcher.Constraint("Horizontal", 7))
sketch6.addConstraint(Sketcher.Constraint("Vertical", 8))
sketch6.addConstraint(Sketcher.Constraint("Horizontal", 9))
sketch6.addConstraint(Sketcher.Constraint("Vertical", 10))
sketch6.addConstraint(Sketcher.Constraint("Horizontal", 11))
sketch6.addConstraint(Sketcher.Constraint("Vertical", 12))
sketch6.addConstraint(Sketcher.Constraint("Horizontal", 13))
sketch6.addConstraint(Sketcher.Constraint("Vertical", 14))
sketch6.addConstraint(Sketcher.Constraint("Horizontal", 15))
sketch6.addConstraint(Sketcher.Constraint("Vertical", 16))
sketch6.addConstraint(Sketcher.Constraint("Horizontal", 17))
sketch6.addConstraint(Sketcher.Constraint("Vertical", 18))
sketch6.addConstraint(Sketcher.Constraint("Horizontal", 19))
sketch6.addConstraint(Sketcher.Constraint("Vertical", 20))
sketch6.addConstraint(Sketcher.Constraint("Horizontal", 21))
sketch6.addConstraint(Sketcher.Constraint("Vertical", 22))
sketch6.addConstraint(Sketcher.Constraint("Horizontal", 23))
sketch6.addConstraint(Sketcher.Constraint("Horizontal", 1, 2, 4, 2))
sketch6.addConstraint(Sketcher.Constraint("Horizontal", 3, 2, 6, 2))
sketch6.addConstraint(Sketcher.Constraint("Horizontal", 5, 2, 8, 2))
sketch6.addConstraint(Sketcher.Constraint("Horizontal", 7, 2, 10, 2))
sketch6.addConstraint(Sketcher.Constraint("Horizontal", 13, 2, 16, 2))
sketch6.addConstraint(Sketcher.Constraint("Horizontal", 15, 2, 18, 2))
sketch6.addConstraint(Sketcher.Constraint("Horizontal", 17, 2, 20, 2))
sketch6.addConstraint(Sketcher.Constraint("Horizontal", 19, 2, 22, 2))
sketch6.addConstraint(Sketcher.Constraint("Vertical", 11, 2, 12, 2))
sketch6.addConstraint(Sketcher.Constraint("Vertical", 10, 2, 13, 2))
sketch6.addConstraint(Sketcher.Constraint("Vertical", 7, 2, 16, 2))
sketch6.addConstraint(Sketcher.Constraint("Vertical", 6, 2, 17, 2))
sketch6.addConstraint(Sketcher.Constraint("Vertical", 3, 2, 20, 2))
sketch6.addConstraint(Sketcher.Constraint("Vertical", 2, 2, 21, 2))
sketch6.addConstraint(Sketcher.Constraint("Equal", 3, 5))
sketch6.addConstraint(Sketcher.Constraint("Equal", 7, 9))
sketch6.addConstraint(Sketcher.Constraint("Equal", 10, 12))
sketch6.addConstraint(Sketcher.Constraint("DistanceY", 0, 1, 0, 2, 4.6))
sketch6.addConstraint(Sketcher.Constraint("DistanceX", 1, 1, 1, 2, 7.27))
sketch6.addConstraint(Sketcher.Constraint("DistanceX", 0, 2, -1, 1, 74.24))
sketch6.addConstraint(Sketcher.Constraint("DistanceY", -1, 1, 0, 2, 11.54))
sketch6.addConstraint(Sketcher.Constraint("DistanceX", 4, 2, -1, 1, 46.15))
sketch6.addConstraint(Sketcher.Constraint("DistanceX", 8, 2, -1, 1, 16.99))
sketch6.addConstraint(Sketcher.Constraint("DistanceY", -1, 1, 12, 2, 33.43))
pocket5 = body.newObject("PartDesign::Pocket", "Pocket004")
pocket5.Profile = sketch6
pocket5.Length = 2.45
pocket5.Reversed = True

# Sketch on XZ plane
sketch7 = body.newObject("Sketcher::SketchObject", "Sketch006")
sketch7.AttachmentSupport = (doc.getObject("XZ_Plane"), [""])
sketch7.MapMode = "FlatFace"
sketch7.AttachmentOffset = App.Placement(Vector(0, 0, -4.61), App.Rotation())
sketch7.addGeometry(Part.Circle(Vector(-55, 21, 0), Vector(0, 0, 1), 7), False)
sketch7.addGeometry(Part.Circle(Vector(-29, 20, 0), Vector(0, 0, 1), 6), False)
sketch7.addConstraint(Sketcher.Constraint("Diameter", 0, 13.44))
sketch7.addConstraint(Sketcher.Constraint("Diameter", 1, 11.28))
sketch7.addConstraint(Sketcher.Constraint("DistanceY", 1, 3, 0, 3, 1.2))
sketch7.addConstraint(Sketcher.Constraint("DistanceX", 0, 3, -1, 1, 54.61))
sketch7.addConstraint(Sketcher.Constraint("DistanceY", -1, 1, 0, 3, 20.79))
sketch7.addConstraint(Sketcher.Constraint("DistanceX", 1, 3, -1, 1, 29.26))
pocket6 = body.newObject("PartDesign::Pocket", "Pocket005")
pocket6.Profile = sketch7
pocket6.Length = 1.75
pocket6.Reversed = True

# Sketch on XZ plane
sketch8 = body.newObject("Sketcher::SketchObject", "Sketch007")
sketch8.AttachmentSupport = (doc.getObject("XZ_Plane"), [""])
sketch8.MapMode = "FlatFace"
sketch8.AttachmentOffset = App.Placement(Vector(0, 0, -4.61), App.Rotation())
sketch8.addGeometry(Part.LineSegment(Vector(-75.4, 13.2, 0), Vector(-75.4, 27.3, 0)), False)
sketch8.addGeometry(Part.LineSegment(Vector(-75.4, 27.3, 0), Vector(-70.3, 27.3, 0)), False)
sketch8.addGeometry(Part.LineSegment(Vector(-70.3, 27.3, 0), Vector(-70.3, 13.2, 0)), False)
sketch8.addGeometry(Part.LineSegment(Vector(-70.3, 13.2, 0), Vector(-75.4, 13.2, 0)), False)
sketch8.addGeometry(Part.LineSegment(Vector(-67, 22.4, 0), Vector(-67, 24.8, 0)), False)
sketch8.addGeometry(Part.LineSegment(Vector(-67, 24.8, 0), Vector(-62.3, 24.8, 0)), False)
sketch8.addGeometry(Part.LineSegment(Vector(-62.3, 24.8, 0), Vector(-62.3, 22.4, 0)), False)
sketch8.addGeometry(Part.LineSegment(Vector(-62.3, 22.4, 0), Vector(-67, 22.4, 0)), False)
sketch8.addGeometry(Part.LineSegment(Vector(-25.4, 1.8, 0), Vector(-25.4, 9.1, 0)), False)
sketch8.addGeometry(Part.LineSegment(Vector(-25.4, 9.1, 0), Vector(-18.9, 9.1, 0)), False)
sketch8.addGeometry(Part.LineSegment(Vector(-18.9, 9.1, 0), Vector(-18.9, 1.8, 0)), False)
sketch8.addGeometry(Part.LineSegment(Vector(-18.9, 1.8, 0), Vector(-25.4, 1.8, 0)), False)
sketch8.addGeometry(Part.LineSegment(Vector(-4.7, 17.1, 0), Vector(-4.7, 23.4, 0)), False)
sketch8.addGeometry(Part.LineSegment(Vector(-4.7, 23.4, 0), Vector(-2, 23.4, 0)), False)
sketch8.addGeometry(Part.LineSegment(Vector(-2, 23.4, 0), Vector(-2, 17.1, 0)), False)
sketch8.addGeometry(Part.LineSegment(Vector(-2, 17.1, 0), Vector(-4.7, 17.1, 0)), False)
sketch8.addConstraint(Sketcher.Constraint("Coincident", 0, 2, 1, 1))
sketch8.addConstraint(Sketcher.Constraint("Coincident", 1, 2, 2, 1))
sketch8.addConstraint(Sketcher.Constraint("Coincident", 2, 2, 3, 1))
sketch8.addConstraint(Sketcher.Constraint("Coincident", 3, 2, 0, 1))
sketch8.addConstraint(Sketcher.Constraint("Coincident", 4, 2, 5, 1))
sketch8.addConstraint(Sketcher.Constraint("Coincident", 5, 2, 6, 1))
sketch8.addConstraint(Sketcher.Constraint("Coincident", 6, 2, 7, 1))
sketch8.addConstraint(Sketcher.Constraint("Coincident", 7, 2, 4, 1))
sketch8.addConstraint(Sketcher.Constraint("Coincident", 8, 2, 9, 1))
sketch8.addConstraint(Sketcher.Constraint("Coincident", 9, 2, 10, 1))
sketch8.addConstraint(Sketcher.Constraint("Coincident", 10, 2, 11, 1))
sketch8.addConstraint(Sketcher.Constraint("Coincident", 11, 2, 8, 1))
sketch8.addConstraint(Sketcher.Constraint("Coincident", 12, 2, 13, 1))
sketch8.addConstraint(Sketcher.Constraint("Coincident", 13, 2, 14, 1))
sketch8.addConstraint(Sketcher.Constraint("Coincident", 14, 2, 15, 1))
sketch8.addConstraint(Sketcher.Constraint("Coincident", 15, 2, 12, 1))
sketch8.addConstraint(Sketcher.Constraint("Vertical", 0))
sketch8.addConstraint(Sketcher.Constraint("Horizontal", 1))
sketch8.addConstraint(Sketcher.Constraint("Vertical", 2))
sketch8.addConstraint(Sketcher.Constraint("Horizontal", 3))
sketch8.addConstraint(Sketcher.Constraint("Vertical", 4))
sketch8.addConstraint(Sketcher.Constraint("Horizontal", 5))
sketch8.addConstraint(Sketcher.Constraint("Vertical", 6))
sketch8.addConstraint(Sketcher.Constraint("Horizontal", 7))
sketch8.addConstraint(Sketcher.Constraint("Vertical", 8))
sketch8.addConstraint(Sketcher.Constraint("Horizontal", 9))
sketch8.addConstraint(Sketcher.Constraint("Vertical", 10))
sketch8.addConstraint(Sketcher.Constraint("Horizontal", 11))
sketch8.addConstraint(Sketcher.Constraint("Vertical", 12))
sketch8.addConstraint(Sketcher.Constraint("Horizontal", 13))
sketch8.addConstraint(Sketcher.Constraint("Vertical", 14))
sketch8.addConstraint(Sketcher.Constraint("Horizontal", 15))
sketch8.addConstraint(Sketcher.Constraint("DistanceY", 4, 1, 4, 2, 2.4))
sketch8.addConstraint(Sketcher.Constraint("DistanceY", 8, 1, 8, 2, 7.3))
sketch8.addConstraint(Sketcher.Constraint("DistanceY", 10, 2, 5, 2, 23.0))
sketch8.addConstraint(Sketcher.Constraint("DistanceX", 1, 1, 1, 2, 5.16))
sketch8.addConstraint(Sketcher.Constraint("DistanceX", 5, 1, 5, 2, 4.69))
sketch8.addConstraint(Sketcher.Constraint("DistanceX", 9, 1, 9, 2, 6.54))
sketch8.addConstraint(Sketcher.Constraint("DistanceX", 13, 1, 13, 2, 2.72))
sketch8.addConstraint(Sketcher.Constraint("DistanceY", 0, 1, 0, 2, 14.14))
sketch8.addConstraint(Sketcher.Constraint("DistanceY", 12, 1, 12, 2, 6.27))
sketch8.addConstraint(Sketcher.Constraint("DistanceY", -1, 1, 2, 2, 13.2))
sketch8.addConstraint(Sketcher.Constraint("DistanceY", -1, 1, 14, 2, 17.1))
sketch8.addConstraint(Sketcher.Constraint("DistanceX", 7, 2, 8, 2, 41.6))
sketch8.addConstraint(Sketcher.Constraint("DistanceX", 8, 2, 12, 2, 20.7))
sketch8.addConstraint(Sketcher.Constraint("DistanceX", 0, 2, -1, 1, 75.44))
sketch8.addConstraint(Sketcher.Constraint("DistanceX", 4, 2, -1, 1, 67.01))
sketch8.addConstraint(Sketcher.Constraint("DistanceY", -1, 1, 4, 2, 24.78))
pocket7 = body.newObject("PartDesign::Pocket", "Pocket006")
pocket7.Profile = sketch8
pocket7.Length = 0.75
pocket7.Reversed = True

doc.recompute()
